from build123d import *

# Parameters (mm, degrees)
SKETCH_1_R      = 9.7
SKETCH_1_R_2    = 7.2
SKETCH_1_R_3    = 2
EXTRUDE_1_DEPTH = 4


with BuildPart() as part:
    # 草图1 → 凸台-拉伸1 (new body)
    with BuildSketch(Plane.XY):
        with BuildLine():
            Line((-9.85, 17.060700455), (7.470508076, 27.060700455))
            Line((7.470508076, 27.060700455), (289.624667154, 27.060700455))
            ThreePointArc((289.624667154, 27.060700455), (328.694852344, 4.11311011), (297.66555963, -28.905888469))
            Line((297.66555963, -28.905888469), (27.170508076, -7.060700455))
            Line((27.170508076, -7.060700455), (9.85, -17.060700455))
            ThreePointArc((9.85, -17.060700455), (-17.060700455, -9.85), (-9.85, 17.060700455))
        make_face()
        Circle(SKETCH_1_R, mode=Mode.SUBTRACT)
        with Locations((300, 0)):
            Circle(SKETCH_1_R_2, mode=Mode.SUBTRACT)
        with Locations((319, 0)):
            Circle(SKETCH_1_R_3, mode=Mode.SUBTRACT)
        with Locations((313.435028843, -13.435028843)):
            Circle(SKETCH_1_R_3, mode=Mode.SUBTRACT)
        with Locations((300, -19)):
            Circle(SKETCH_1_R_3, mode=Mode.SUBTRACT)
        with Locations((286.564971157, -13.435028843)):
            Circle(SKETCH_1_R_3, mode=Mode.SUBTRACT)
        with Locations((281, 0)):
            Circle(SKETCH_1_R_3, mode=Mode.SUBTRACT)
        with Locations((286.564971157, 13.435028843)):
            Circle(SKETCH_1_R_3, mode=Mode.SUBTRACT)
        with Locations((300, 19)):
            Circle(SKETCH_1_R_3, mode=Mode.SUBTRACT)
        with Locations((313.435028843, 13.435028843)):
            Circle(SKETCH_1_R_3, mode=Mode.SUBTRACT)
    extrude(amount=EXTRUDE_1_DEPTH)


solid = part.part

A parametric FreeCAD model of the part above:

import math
import FreeCAD as App
import Part
import Sketcher
Q = App.Units.Quantity

doc = App.newDocument("Part")
params = doc.addObject("Spreadsheet::Sheet", "Params")
for row, (alias, value) in enumerate([
    ("sketch1_diameter", "4 mm"),
    ("sketch1_diameter2", "14.4 mm"),
    ("sketch1_diameter3", "19.4 mm"),
    ("sketch1_radius", "19.7 mm"),
    ("sketch1_length", "20 mm"),
    ("pad1_length", "4 mm"),
], start=1):
    params.set(f"A{row}", alias)
    params.set(f"B{row}", "=" + value)
    params.setAlias(f"B{row}", alias)

body = doc.addObject("PartDesign::Body", "Body")

# Sketch on XY plane
sketch1 = body.newObject("Sketcher::SketchObject", "Sketch")
sketch1.AttachmentSupport = (doc.getObject("XY_Plane"), [""])
sketch1.MapMode = "FlatFace"
sketch1.addGeometry([
    Part.LineSegment(App.Vector(7.5, 27.1, 0), App.Vector(-9.8, 17.1, 0)),  # 0
    Part.ArcOfCircle(Part.Circle(App.Vector(0, 0, 0), App.Vector(0, 0, 1), 19.7), math.radians(120), math.radians(300)),  # 1
    Part.LineSegment(App.Vector(9.8, -17.1, 0), App.Vector(27.2, -7.1, 0)),  # 2
    Part.LineSegment(App.Vector(27.2, -7.1, 0), App.Vector(297.7, -28.9, 0)),  # 3
    Part.ArcOfCircle(Part.Circle(App.Vector(300, 0, 0), App.Vector(0, 0, 1), 29), math.radians(-95), math.radians(111)),  # 4
    Part.LineSegment(App.Vector(289.6, 27.1, 0), App.Vector(7.5, 27.1, 0)),  # 5
    Part.Circle(App.Vector(300, -19, 0), App.Vector(0, 0, 1), 2),  # 6
    Part.Circle(App.Vector(313.4, -13.4, 0), App.Vector(0, 0, 1), 2),  # 7
    Part.Circle(App.Vector(286.6, -13.4, 0), App.Vector(0, 0, 1), 2),  # 8
    Part.Circle(App.Vector(319, 0, 0), App.Vector(0, 0, 1), 2),  # 9
    Part.Circle(App.Vector(300, 0, 0), App.Vector(0, 0, 1), 7.2),  # 10
    Part.Circle(App.Vector(281, 0, 0), App.Vector(0, 0, 1), 2),  # 11
    Part.Circle(App.Vector(313.4, 13.4, 0), App.Vector(0, 0, 1), 2),  # 12
    Part.Circle(App.Vector(286.6, 13.4, 0), App.Vector(0, 0, 1), 2),  # 13
    Part.Circle(App.Vector(300, 19, 0), App.Vector(0, 0, 1), 2),  # 14
    Part.Circle(App.Vector(0, 0, 0), App.Vector(0, 0, 1), 9.7),  # 15
], False)
sketch1.addConstraint([
    Sketcher.Constraint("Tangent", 0, 2, 1, 1),
    Sketcher.Constraint("Tangent", 1, 2, 2, 1),
    Sketcher.Constraint("Coincident", 2, 2, 3, 1),
    Sketcher.Constraint("Tangent", 3, 2, 4, 1),
    Sketcher.Constraint("Coincident", 4, 2, 5, 1),
    Sketcher.Constraint("Coincident", 5, 2, 0, 1),
    Sketcher.Constraint("Horizontal", 5),
    Sketcher.Constraint("Coincident", 1, 3, -1, 1),
    Sketcher.Constraint("Coincident", 15, 3, -1, 1),
    Sketcher.Constraint("Equal", 6, 7),
    Sketcher.Constraint("Equal", 7, 8),
    Sketcher.Constraint("Equal", 8, 9),
    Sketcher.Constraint("Equal", 9, 11),
    Sketcher.Constraint("Equal", 11, 12),
    Sketcher.Constraint("Equal", 12, 13),
    Sketcher.Constraint("Equal", 13, 14),
    Sketcher.Constraint("Symmetric", 7, 3, 12, 3, -1),
    Sketcher.Constraint("Symmetric", 8, 3, 13, 3, -1),
    Sketcher.Constraint("Symmetric", 6, 3, 14, 3, -1),
    Sketcher.Constraint("PointOnObject", 9, 3, -1),
    Sketcher.Constraint("PointOnObject", 10, 3, -1),
    Sketcher.Constraint("PointOnObject", 11, 3, -1),
    Sketcher.Constraint("Parallel", 0, 2),
    Sketcher.Constraint("Horizontal", 7, 3, 8, 3),
    Sketcher.Constraint("Vertical", 6, 3, 10, 3),
    Sketcher.Constraint("Equal", 0, 2),
    Sketcher.Constraint("Diameter", 6, 4.0),
    Sketcher.Constraint("Diameter", 10, 14.4),
    Sketcher.Constraint("Diameter", 15, 19.4),
    Sketcher.Constraint("Radius", 1, 19.7),
    Sketcher.Constraint("Angle", 0, Q("-150 deg")),
    Sketcher.Constraint("Distance", 0, 20.0),
    Sketcher.Constraint("DistanceX", -1, 1, 6, 3, 300.0),
    Sketcher.Constraint("DistanceY", 6, 3, -1, 1, 19.0),
    Sketcher.Constraint("DistanceX", -1, 1, 9, 3, 319.0),
    Sketcher.Constraint("DistanceX", -1, 1, 11, 3, 281.0),
    Sketcher.Constraint("Radius", 4, 28.990288),
    Sketcher.Constraint("DistanceX", 5, 2, 5, 1, 282.154159),
    Sketcher.Constraint("DistanceX", -1, 1, 4, 3, 299.999218),
    Sketcher.Constraint("DistanceX", -1, 1, 7, 3, 313.435029),
    Sketcher.Constraint("DistanceY", 7, 3, -1, 1, 13.435029),
    Sketcher.Constraint("DistanceX", -1, 1, 8, 3, 286.564971),
])
sketch1.setExpression("Constraints[26]", "Params.sketch1_diameter")
sketch1.setExpression("Constraints[27]", "Params.sketch1_diameter2")
sketch1.setExpression("Constraints[28]", "Params.sketch1_diameter3")
sketch1.setExpression("Constraints[29]", "Params.sketch1_radius")
sketch1.setExpression("Constraints[31]", "Params.sketch1_length")
pad1 = body.newObject("PartDesign::Pad", "Pad")
pad1.Profile = sketch1
pad1.setExpression("Length", "Params.pad1_length")

doc.recompute()
